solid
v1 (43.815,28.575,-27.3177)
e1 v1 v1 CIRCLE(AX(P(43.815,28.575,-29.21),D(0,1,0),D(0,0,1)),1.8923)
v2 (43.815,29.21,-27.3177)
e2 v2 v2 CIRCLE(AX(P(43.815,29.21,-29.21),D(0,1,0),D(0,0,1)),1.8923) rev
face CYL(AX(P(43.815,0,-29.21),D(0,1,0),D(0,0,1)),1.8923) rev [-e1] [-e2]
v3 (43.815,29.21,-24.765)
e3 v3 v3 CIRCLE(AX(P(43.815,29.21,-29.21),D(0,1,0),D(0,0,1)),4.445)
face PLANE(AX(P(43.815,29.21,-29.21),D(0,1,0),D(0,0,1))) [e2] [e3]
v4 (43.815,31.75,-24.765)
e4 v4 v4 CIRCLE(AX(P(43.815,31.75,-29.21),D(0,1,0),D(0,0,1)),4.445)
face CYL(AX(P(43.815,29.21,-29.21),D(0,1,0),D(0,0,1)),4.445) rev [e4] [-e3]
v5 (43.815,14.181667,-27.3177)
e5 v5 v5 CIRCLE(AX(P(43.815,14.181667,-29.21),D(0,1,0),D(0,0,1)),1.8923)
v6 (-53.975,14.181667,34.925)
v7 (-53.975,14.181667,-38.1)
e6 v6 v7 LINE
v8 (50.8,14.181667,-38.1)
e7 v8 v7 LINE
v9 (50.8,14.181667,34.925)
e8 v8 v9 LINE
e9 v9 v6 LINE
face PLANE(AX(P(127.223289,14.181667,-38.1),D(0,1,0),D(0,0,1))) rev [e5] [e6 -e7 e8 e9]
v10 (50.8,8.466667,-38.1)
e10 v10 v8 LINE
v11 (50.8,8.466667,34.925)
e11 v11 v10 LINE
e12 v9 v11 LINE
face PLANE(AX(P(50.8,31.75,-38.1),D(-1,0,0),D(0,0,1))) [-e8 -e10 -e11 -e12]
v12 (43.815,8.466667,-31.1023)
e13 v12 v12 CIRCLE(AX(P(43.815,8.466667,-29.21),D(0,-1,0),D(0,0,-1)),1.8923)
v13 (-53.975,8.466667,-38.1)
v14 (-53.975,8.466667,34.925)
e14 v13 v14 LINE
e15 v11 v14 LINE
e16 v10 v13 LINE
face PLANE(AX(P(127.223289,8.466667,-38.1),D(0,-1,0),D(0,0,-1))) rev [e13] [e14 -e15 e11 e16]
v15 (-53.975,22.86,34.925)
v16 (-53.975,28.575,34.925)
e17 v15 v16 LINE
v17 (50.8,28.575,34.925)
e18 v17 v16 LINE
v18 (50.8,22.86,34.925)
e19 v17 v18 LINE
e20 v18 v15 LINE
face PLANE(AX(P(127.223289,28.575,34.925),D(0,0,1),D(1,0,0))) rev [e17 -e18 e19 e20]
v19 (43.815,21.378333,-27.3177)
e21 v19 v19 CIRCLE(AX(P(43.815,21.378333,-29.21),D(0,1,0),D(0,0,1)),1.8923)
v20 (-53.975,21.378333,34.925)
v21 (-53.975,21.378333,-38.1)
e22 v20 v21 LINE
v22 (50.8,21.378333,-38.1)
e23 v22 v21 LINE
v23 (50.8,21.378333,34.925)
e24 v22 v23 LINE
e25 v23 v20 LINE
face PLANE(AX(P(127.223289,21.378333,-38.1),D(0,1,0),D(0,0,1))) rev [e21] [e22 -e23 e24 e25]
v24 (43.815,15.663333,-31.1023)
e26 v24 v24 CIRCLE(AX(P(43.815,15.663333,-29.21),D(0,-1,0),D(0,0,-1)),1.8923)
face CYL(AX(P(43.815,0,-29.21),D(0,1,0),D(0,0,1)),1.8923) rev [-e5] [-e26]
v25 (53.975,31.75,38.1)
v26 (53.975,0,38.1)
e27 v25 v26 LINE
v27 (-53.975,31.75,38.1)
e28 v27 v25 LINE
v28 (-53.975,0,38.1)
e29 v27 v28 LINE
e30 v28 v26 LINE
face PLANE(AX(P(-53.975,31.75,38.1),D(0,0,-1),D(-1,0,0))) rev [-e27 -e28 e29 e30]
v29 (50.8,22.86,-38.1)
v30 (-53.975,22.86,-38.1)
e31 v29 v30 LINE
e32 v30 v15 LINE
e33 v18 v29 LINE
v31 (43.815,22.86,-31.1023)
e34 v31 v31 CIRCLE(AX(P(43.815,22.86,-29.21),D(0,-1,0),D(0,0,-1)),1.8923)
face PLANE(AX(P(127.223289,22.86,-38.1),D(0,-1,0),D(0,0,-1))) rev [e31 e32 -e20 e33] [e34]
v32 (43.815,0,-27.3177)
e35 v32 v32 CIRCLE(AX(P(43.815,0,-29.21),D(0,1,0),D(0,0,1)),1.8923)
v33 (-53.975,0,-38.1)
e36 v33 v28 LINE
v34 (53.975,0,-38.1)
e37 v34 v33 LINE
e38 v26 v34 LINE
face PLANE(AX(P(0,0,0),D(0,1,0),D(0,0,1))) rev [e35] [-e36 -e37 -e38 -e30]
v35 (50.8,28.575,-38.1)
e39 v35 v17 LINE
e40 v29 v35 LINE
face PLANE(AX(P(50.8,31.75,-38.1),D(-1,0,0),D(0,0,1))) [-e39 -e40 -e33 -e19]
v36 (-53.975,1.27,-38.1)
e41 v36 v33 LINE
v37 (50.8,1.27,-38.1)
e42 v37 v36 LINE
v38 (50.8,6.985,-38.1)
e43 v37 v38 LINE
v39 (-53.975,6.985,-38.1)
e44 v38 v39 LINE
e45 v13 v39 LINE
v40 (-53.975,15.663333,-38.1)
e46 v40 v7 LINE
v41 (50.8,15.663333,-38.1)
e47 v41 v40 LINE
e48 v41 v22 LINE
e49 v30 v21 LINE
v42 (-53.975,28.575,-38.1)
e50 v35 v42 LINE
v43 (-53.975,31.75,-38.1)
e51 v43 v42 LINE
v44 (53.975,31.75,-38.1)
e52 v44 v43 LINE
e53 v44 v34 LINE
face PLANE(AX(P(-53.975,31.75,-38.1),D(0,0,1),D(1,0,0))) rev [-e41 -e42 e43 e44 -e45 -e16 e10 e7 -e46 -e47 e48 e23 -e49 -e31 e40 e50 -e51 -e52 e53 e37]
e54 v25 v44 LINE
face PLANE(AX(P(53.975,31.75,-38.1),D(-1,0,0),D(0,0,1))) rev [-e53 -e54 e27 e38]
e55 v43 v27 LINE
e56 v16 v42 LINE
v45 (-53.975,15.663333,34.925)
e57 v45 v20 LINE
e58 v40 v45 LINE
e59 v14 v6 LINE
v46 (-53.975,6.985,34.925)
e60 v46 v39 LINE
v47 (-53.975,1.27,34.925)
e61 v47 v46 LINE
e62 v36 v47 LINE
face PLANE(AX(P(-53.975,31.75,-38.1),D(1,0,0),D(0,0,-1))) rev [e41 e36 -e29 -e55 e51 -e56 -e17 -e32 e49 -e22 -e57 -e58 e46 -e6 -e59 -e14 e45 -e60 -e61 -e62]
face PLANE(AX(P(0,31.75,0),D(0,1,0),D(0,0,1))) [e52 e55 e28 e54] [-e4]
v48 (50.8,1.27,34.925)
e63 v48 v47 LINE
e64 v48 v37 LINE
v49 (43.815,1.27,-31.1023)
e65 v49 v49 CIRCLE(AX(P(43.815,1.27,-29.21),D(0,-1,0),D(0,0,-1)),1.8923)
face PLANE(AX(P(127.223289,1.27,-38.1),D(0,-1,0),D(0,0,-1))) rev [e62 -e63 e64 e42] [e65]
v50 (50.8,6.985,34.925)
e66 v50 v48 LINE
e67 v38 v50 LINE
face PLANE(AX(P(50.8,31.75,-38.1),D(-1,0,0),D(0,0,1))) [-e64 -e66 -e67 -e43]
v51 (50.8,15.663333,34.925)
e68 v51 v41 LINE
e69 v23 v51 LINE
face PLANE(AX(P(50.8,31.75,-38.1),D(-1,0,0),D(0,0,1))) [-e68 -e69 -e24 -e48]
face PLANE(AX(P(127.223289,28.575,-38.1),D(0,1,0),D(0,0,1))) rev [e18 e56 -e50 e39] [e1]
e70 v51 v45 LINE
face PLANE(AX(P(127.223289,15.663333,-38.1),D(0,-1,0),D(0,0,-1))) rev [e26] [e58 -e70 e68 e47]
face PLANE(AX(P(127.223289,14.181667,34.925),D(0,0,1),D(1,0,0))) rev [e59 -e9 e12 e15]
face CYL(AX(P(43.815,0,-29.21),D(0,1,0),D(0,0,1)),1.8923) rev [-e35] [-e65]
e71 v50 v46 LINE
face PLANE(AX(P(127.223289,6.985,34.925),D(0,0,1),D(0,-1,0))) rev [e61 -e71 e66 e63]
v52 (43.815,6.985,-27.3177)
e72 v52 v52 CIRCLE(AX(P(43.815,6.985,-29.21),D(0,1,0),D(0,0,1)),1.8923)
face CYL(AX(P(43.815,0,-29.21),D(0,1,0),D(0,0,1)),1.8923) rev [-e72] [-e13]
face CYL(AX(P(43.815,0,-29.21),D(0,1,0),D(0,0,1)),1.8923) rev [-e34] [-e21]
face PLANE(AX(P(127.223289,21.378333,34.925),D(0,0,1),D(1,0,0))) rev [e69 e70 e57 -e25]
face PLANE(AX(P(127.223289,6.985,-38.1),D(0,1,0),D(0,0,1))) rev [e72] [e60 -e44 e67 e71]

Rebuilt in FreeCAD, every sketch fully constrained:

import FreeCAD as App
import Part
import Sketcher

V = App.Vector
Q = App.Units.Quantity

doc = App.newDocument("Part")
body = doc.addObject("PartDesign::Body", "Body")

# Sketch on XZ plane
sketch1 = doc.addObject("Sketcher::SketchObject", "Sketch")
body.addObject(sketch1)
sketch1.AttachmentSupport = (doc.XZ_Plane, [""])
sketch1.MapMode = "FlatFace"
sketch1.addGeometry(Part.LineSegment(V(-54, -38, 0), V(-54, 38, 0)), False)
sketch1.addGeometry(Part.LineSegment(V(-54, 38, 0), V(54, 38, 0)), False)
sketch1.addGeometry(Part.LineSegment(V(54, 38, 0), V(54, -38, 0)), False)
sketch1.addGeometry(Part.LineSegment(V(54, -38, 0), V(-54, -38, 0)), False)
sketch1.addConstraint(Sketcher.Constraint("Coincident", 0, 2, 1, 1))
sketch1.addConstraint(Sketcher.Constraint("Coincident", 1, 2, 2, 1))
sketch1.addConstraint(Sketcher.Constraint("Coincident", 2, 2, 3, 1))
sketch1.addConstraint(Sketcher.Constraint("Coincident", 3, 2, 0, 1))
sketch1.addConstraint(Sketcher.Constraint("Vertical", 0))
sketch1.addConstraint(Sketcher.Constraint("Horizontal", 1))
sketch1.addConstraint(Sketcher.Constraint("Vertical", 2))
sketch1.addConstraint(Sketcher.Constraint("Horizontal", 3))
sketch1.addConstraint(Sketcher.Constraint("Symmetric", 0, 2, 2, 2, -1, 1))
sketch1.addConstraint(Sketcher.Constraint("DistanceY", 0, 1, 0, 2, Q("3 in")))
sketch1.addConstraint(Sketcher.Constraint("DistanceX", 1, 1, 1, 2, Q("4.25 in")))
pad1 = doc.addObject("PartDesign::Pad", "Pad")
body.addObject(pad1)
pad1.Profile = sketch1
pad1.Length = Q("1.25 in")
pad1.Reversed = True

# Sketch on YZ plane
sketch2 = doc.addObject("Sketcher::SketchObject", "Sketch001")
body.addObject(sketch2)
sketch2.AttachmentSupport = (doc.YZ_Plane, [""])
sketch2.MapMode = "FlatFace"
sketch2.AttachmentOffset = App.Placement(V(0, 0, -2.125 * 25.4), App.Rotation())
sketch2.addGeometry(Part.LineSegment(V(29, -38, 0), V(23, -38, 0)), False)
sketch2.addGeometry(Part.LineSegment(V(23, -38, 0), V(23, 35, 0)), False)
sketch2.addGeometry(Part.LineSegment(V(23, 35, 0), V(29, 35, 0)), False)
sketch2.addGeometry(Part.LineSegment(V(29, 35, 0), V(29, -38, 0)), False)
sketch2.addGeometry(Part.LineSegment(V(21, -38, 0), V(16, -38, 0)), False)
sketch2.addGeometry(Part.LineSegment(V(16, -38, 0), V(16, 35, 0)), False)
sketch2.addGeometry(Part.LineSegment(V(16, 35, 0), V(21, 35, 0)), False)
sketch2.addGeometry(Part.LineSegment(V(21, 35, 0), V(21, -38, 0)), False)
sketch2.addGeometry(Part.LineSegment(V(14, -38, 0), V(8, -38, 0)), False)
sketch2.addGeometry(Part.LineSegment(V(8, -38, 0), V(8, 35, 0)), False)
sketch2.addGeometry(Part.LineSegment(V(8, 35, 0), V(14, 35, 0)), False)
sketch2.addGeometry(Part.LineSegment(V(14, 35, 0), V(14, -38, 0)), False)
sketch2.addGeometry(Part.LineSegment(V(7, -38, 0), V(1, -38, 0)), False)
sketch2.addGeometry(Part.LineSegment(V(1, -38, 0), V(1, 35, 0)), False)
sketch2.addGeometry(Part.LineSegment(V(1, 35, 0), V(7, 35, 0)), False)
sketch2.addGeometry(Part.LineSegment(V(7, 35, 0), V(7, -38, 0)), False)
sketch2.addConstraint(Sketcher.Constraint("Coincident", 0, 2, 1, 1))
sketch2.addConstraint(Sketcher.Constraint("Coincident", 1, 2, 2, 1))
sketch2.addConstraint(Sketcher.Constraint("Coincident", 2, 2, 3, 1))
sketch2.addConstraint(Sketcher.Constraint("Coincident", 3, 2, 0, 1))
sketch2.addConstraint(Sketcher.Constraint("Coincident", 4, 2, 5, 1))
sketch2.addConstraint(Sketcher.Constraint("Coincident", 5, 2, 6, 1))
sketch2.addConstraint(Sketcher.Constraint("Coincident", 6, 2, 7, 1))
sketch2.addConstraint(Sketcher.Constraint("Coincident", 7, 2, 4, 1))
sketch2.addConstraint(Sketcher.Constraint("Coincident", 8, 2, 9, 1))
sketch2.addConstraint(Sketcher.Constraint("Coincident", 9, 2, 10, 1))
sketch2.addConstraint(Sketcher.Constraint("Coincident", 10, 2, 11, 1))
sketch2.addConstraint(Sketcher.Constraint("Coincident", 11, 2, 8, 1))
sketch2.addConstraint(Sketcher.Constraint("Coincident", 12, 2, 13, 1))
sketch2.addConstraint(Sketcher.Constraint("Coincident", 13, 2, 14, 1))
sketch2.addConstraint(Sketcher.Constraint("Coincident", 14, 2, 15, 1))
sketch2.addConstraint(Sketcher.Constraint("Coincident", 15, 2, 12, 1))
sketch2.addConstraint(Sketcher.Constraint("Horizontal", 0))
sketch2.addConstraint(Sketcher.Constraint("Vertical", 1))
sketch2.addConstraint(Sketcher.Constraint("Horizontal", 2))
sketch2.addConstraint(Sketcher.Constraint("Vertical", 3))
sketch2.addConstraint(Sketcher.Constraint("Horizontal", 4))
sketch2.addConstraint(Sketcher.Constraint("Vertical", 5))
sketch2.addConstraint(Sketcher.Constraint("Horizontal", 6))
sketch2.addConstraint(Sketcher.Constraint("Vertical", 7))
sketch2.addConstraint(Sketcher.Constraint("Horizontal", 8))
sketch2.addConstraint(Sketcher.Constraint("Vertical", 9))
sketch2.addConstraint(Sketcher.Constraint("Horizontal", 10))
sketch2.addConstraint(Sketcher.Constraint("Vertical", 11))
sketch2.addConstraint(Sketcher.Constraint("Horizontal", 12))
sketch2.addConstraint(Sketcher.Constraint("Vertical", 13))
sketch2.addConstraint(Sketcher.Constraint("Horizontal", 14))
sketch2.addConstraint(Sketcher.Constraint("Vertical", 15))
sketch2.addConstraint(Sketcher.Constraint("Horizontal", 3, 2, 4, 2))
sketch2.addConstraint(Sketcher.Constraint("Horizontal", 2, 2, 5, 2))
sketch2.addConstraint(Sketcher.Constraint("Horizontal", 7, 2, 8, 2))
sketch2.addConstraint(Sketcher.Constraint("Horizontal", 6, 2, 9, 2))
sketch2.addConstraint(Sketcher.Constraint("Horizontal", 11, 2, 12, 2))
sketch2.addConstraint(Sketcher.Constraint("Horizontal", 10, 2, 13, 2))
sketch2.addConstraint(Sketcher.Constraint("Equal", 2, 4))
sketch2.addConstraint(Sketcher.Constraint("Equal", 6, 8))
sketch2.addConstraint(Sketcher.Constraint("Equal", 10, 12))
sketch2.addConstraint(Sketcher.Constraint("DistanceX", -1, 1, 0, 2, Q("0.9 in")))
sketch2.addConstraint(Sketcher.Constraint("DistanceY", 0, 2, -1, 1, Q("1.5 in")))
sketch2.addConstraint(Sketcher.Constraint("DistanceX", 0, 2, 0, 1, Q("0.225 in")))
sketch2.addConstraint(Sketcher.Constraint("DistanceY", 1, 1, 1, 2, Q("2.875 in")))
sketch2.addConstraint(Sketcher.Constraint("DistanceX", -1, 1, 12, 2, Q("0.05 in")))
sketch2.addConstraint(Sketcher.Constraint("DistanceX", -1, 1, 4, 2, 15.663333))
sketch2.addConstraint(Sketcher.Constraint("DistanceX", -1, 1, 8, 2, 8.466667))
pocket1 = doc.addObject("PartDesign::Pocket", "Pocket")
body.addObject(pocket1)
pocket1.Profile = sketch2
pocket1.Length = Q("4.125 in")
pocket1.Reversed = True

# Sketch on XZ plane
sketch3 = doc.addObject("Sketcher::SketchObject", "Sketch002")
body.addObject(sketch3)
sketch3.AttachmentSupport = (doc.XZ_Plane, [""])
sketch3.MapMode = "FlatFace"
sketch3.AttachmentOffset = App.Placement(V(0, 0, -1.25 * 25.4), App.Rotation())
sketch3.addGeometry(Part.Circle(V(43.8, -29.2, 0), V(0, 0, 1), 1.9), False)
sketch3.addConstraint(Sketcher.Constraint("Diameter", 0, Q("0.149 in")))
sketch3.addConstraint(Sketcher.Constraint("DistanceY", 0, 3, -1, 1, Q("1.15 in")))
sketch3.addConstraint(Sketcher.Constraint("DistanceX", -1, 1, 0, 3, Q("1.725 in")))
pocket2 = doc.addObject("PartDesign::Pocket", "Pocket001")
body.addObject(pocket2)
pocket2.Profile = sketch3
pocket2.Type = "ThroughAll"
pocket2.Reversed = True

# Sketch on XZ plane
sketch4 = doc.addObject("Sketcher::SketchObject", "Sketch003")
body.addObject(sketch4)
sketch4.AttachmentSupport = (doc.XZ_Plane, [""])
sketch4.MapMode = "FlatFace"
sketch4.AttachmentOffset = App.Placement(V(0, 0, -1.25 * 25.4), App.Rotation())
sketch4.addGeometry(Part.Circle(V(43.8, -29.2, 0), V(0, 0, 1), 4.4), False)
sketch4.addConstraint(Sketcher.Constraint("Diameter", 0, Q("0.35 in")))
sketch4.addConstraint(Sketcher.Constraint("DistanceY", 0, 3, -1, 1, Q("1.15 in")))
sketch4.addConstraint(Sketcher.Constraint("DistanceX", -1, 1, 0, 3, Q("1.725 in")))
pocket3 = doc.addObject("PartDesign::Pocket", "Pocket002")
body.addObject(pocket3)
pocket3.Profile = sketch4
pocket3.Length = Q("0.1 in")
pocket3.Reversed = True

doc.recompute()
